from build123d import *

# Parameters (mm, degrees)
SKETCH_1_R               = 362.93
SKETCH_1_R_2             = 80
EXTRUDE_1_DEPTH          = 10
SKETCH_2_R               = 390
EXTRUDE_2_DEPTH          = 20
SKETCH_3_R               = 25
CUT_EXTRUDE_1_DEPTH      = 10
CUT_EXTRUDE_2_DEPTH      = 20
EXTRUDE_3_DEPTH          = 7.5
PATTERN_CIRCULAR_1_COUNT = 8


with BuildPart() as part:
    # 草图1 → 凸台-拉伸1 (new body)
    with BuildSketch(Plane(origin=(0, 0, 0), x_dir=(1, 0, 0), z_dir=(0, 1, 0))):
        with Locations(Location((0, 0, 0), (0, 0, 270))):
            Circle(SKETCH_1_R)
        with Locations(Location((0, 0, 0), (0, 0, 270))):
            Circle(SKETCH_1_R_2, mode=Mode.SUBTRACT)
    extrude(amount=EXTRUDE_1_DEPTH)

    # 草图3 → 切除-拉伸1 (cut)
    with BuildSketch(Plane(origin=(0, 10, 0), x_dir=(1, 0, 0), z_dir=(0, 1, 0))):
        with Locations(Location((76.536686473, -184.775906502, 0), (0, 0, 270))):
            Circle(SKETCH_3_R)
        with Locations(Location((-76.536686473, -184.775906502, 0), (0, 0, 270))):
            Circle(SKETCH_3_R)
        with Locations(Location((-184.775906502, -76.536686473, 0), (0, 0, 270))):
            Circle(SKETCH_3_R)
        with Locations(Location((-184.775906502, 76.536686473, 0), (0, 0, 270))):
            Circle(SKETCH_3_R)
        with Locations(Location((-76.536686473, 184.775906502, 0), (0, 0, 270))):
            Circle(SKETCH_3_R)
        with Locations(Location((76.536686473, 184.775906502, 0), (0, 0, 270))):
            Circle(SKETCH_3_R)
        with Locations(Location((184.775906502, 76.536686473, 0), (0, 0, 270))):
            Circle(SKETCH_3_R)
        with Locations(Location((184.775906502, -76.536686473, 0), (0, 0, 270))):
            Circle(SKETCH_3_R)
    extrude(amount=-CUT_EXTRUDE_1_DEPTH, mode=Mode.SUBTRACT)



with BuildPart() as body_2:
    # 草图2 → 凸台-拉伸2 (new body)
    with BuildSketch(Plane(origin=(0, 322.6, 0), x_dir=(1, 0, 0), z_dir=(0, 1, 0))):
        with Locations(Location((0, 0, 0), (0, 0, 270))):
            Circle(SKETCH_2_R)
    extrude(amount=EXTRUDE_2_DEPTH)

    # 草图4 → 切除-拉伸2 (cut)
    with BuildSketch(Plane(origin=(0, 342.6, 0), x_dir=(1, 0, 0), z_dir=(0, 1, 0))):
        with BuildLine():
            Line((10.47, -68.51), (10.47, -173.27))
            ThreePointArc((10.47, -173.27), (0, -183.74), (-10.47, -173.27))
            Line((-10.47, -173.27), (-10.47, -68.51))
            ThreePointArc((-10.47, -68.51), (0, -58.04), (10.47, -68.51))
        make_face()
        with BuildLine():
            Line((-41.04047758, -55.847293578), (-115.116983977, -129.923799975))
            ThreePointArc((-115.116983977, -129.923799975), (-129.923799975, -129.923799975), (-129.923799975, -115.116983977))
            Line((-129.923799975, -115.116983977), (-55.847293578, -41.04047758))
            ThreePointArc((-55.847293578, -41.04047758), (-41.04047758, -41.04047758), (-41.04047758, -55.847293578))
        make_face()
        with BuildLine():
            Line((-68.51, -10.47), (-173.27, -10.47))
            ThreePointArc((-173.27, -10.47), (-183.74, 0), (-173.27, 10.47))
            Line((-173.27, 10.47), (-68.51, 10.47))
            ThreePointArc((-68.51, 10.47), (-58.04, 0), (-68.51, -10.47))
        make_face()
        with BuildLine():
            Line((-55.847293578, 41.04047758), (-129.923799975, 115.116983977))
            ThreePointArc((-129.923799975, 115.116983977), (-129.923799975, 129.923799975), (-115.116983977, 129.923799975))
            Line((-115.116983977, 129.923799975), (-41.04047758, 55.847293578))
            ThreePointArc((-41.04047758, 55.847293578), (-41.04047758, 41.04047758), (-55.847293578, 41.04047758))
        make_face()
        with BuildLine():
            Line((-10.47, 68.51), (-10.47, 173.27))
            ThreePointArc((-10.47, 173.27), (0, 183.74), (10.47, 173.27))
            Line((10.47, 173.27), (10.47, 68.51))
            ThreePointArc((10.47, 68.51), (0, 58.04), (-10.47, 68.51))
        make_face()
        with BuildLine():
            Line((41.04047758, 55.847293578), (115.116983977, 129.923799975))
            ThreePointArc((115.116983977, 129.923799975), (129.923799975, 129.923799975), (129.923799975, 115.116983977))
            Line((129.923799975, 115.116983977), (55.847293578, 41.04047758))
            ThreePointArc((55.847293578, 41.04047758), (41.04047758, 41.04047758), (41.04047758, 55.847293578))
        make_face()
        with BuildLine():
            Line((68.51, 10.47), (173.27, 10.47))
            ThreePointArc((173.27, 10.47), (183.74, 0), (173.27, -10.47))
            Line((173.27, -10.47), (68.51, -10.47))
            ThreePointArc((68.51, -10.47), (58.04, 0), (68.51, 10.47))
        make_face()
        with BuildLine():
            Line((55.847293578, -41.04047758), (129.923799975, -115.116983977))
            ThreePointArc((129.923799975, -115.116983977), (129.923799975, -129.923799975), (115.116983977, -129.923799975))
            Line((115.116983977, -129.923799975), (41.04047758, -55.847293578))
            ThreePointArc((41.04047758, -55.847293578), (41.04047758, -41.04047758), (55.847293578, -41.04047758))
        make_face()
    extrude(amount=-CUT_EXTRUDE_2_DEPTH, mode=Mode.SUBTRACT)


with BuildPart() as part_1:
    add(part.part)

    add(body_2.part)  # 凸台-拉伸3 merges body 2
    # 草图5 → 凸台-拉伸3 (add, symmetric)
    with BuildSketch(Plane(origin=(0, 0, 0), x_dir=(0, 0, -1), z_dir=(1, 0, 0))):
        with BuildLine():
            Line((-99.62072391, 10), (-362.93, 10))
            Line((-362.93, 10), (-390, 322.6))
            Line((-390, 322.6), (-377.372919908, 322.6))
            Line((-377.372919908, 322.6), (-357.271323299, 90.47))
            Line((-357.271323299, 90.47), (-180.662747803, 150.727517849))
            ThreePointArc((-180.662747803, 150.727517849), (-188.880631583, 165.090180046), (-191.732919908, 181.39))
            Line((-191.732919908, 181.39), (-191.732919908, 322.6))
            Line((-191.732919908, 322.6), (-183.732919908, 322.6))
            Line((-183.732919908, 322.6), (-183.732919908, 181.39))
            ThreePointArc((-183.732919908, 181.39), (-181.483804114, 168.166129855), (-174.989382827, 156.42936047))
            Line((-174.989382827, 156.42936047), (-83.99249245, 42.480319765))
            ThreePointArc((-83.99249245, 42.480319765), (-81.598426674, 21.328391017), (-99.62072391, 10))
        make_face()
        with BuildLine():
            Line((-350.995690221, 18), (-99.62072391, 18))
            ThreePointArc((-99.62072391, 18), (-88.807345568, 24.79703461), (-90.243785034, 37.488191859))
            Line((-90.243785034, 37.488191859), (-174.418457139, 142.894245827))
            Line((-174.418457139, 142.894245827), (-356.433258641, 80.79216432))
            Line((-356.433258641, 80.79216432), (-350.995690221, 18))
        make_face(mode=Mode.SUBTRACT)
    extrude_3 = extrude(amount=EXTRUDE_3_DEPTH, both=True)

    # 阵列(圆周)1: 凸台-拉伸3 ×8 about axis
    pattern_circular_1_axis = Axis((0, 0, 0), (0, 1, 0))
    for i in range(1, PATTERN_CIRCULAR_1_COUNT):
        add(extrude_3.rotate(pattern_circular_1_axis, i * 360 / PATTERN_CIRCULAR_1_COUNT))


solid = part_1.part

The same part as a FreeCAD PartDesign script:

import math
import FreeCAD as App
import Part
import Sketcher
from FreeCAD import Vector
Q = App.Units.Quantity

doc = App.newDocument("Part")
body = doc.addObject("PartDesign::Body", "Body")

# Sketch on XZ plane
sketch1 = body.newObject("Sketcher::SketchObject", "Sketch")
sketch1.AttachmentSupport = (doc.getObject("XZ_Plane"), [""])
sketch1.MapMode = "FlatFace"
sketch1.addGeometry([
    Part.Circle(Vector(0, 0, 0), Vector(0, 0, 1), 362.93),
    Part.Circle(Vector(0, 0, 0), Vector(0, 0, 1), 80),
], False)
sketch1.addConstraint([
    Sketcher.Constraint("Coincident", 0, 3, -1, 1),
    Sketcher.Constraint("Coincident", 1, 3, -1, 1),
    Sketcher.Constraint("Diameter", 1, 160.0),
    Sketcher.Constraint("Diameter", 0, 725.86),
])
pad1 = body.newObject("PartDesign::Pad", "Pad")
pad1.Profile = sketch1
pad1.Length = 10
pad1.Reversed = True

# Sketch on XZ plane
sketch2 = body.newObject("Sketcher::SketchObject", "Sketch001")
sketch2.AttachmentSupport = (doc.getObject("XZ_Plane"), [""])
sketch2.MapMode = "FlatFace"
sketch2.AttachmentOffset = App.Placement(Vector(0, 0, -10), App.Rotation())
sketch2.addGeometry([
    Part.Circle(Vector(76.536686, 184.775907, 0), Vector(0, 0, 1), 25),  # 0
    Part.Circle(Vector(-76.536686, 184.775907, 0), Vector(0, 0, 1), 25),  # 1
    Part.Circle(Vector(-184.775907, 76.536686, 0), Vector(0, 0, 1), 25),  # 2
    Part.Circle(Vector(-184.775907, -76.536686, 0), Vector(0, 0, 1), 25),  # 3
    Part.Circle(Vector(-76.536686, -184.775907, 0), Vector(0, 0, 1), 25),  # 4
    Part.Circle(Vector(76.536686, -184.775907, 0), Vector(0, 0, 1), 25),  # 5
    Part.Circle(Vector(184.775907, -76.536686, 0), Vector(0, 0, 1), 25),  # 6
    Part.Circle(Vector(184.775907, 76.536686, 0), Vector(0, 0, 1), 25),  # 7
], False)
sketch2.addConstraint([
    Sketcher.Constraint("Equal", 0, 1),
    Sketcher.Constraint("Equal", 1, 2),
    Sketcher.Constraint("Equal", 2, 3),
    Sketcher.Constraint("Equal", 3, 4),
    Sketcher.Constraint("Equal", 4, 5),
    Sketcher.Constraint("Equal", 5, 6),
    Sketcher.Constraint("Equal", 6, 7),
    Sketcher.Constraint("Symmetric", 0, 3, 4, 3, -1, 1),
    Sketcher.Constraint("Symmetric", 1, 3, 5, 3, -1, 1),
    Sketcher.Constraint("Symmetric", 2, 3, 6, 3, -1, 1),
    Sketcher.Constraint("Symmetric", 3, 3, 7, 3, -1, 1),
    Sketcher.Constraint("Symmetric", 0, 3, 1, 3, -2),
    Sketcher.Constraint("Symmetric", 3, 3, 6, 3, -2),
    Sketcher.Constraint("Diameter", 0, 50.0),
    Sketcher.Constraint("DistanceX", 2, 3, 1, 3, 108.23922),
    Sketcher.Constraint("DistanceY", 2, 3, 1, 3, 108.23922),
    Sketcher.Constraint("DistanceX", -1, 1, 0, 3, 76.536686),
    Sketcher.Constraint("DistanceY", -1, 1, 0, 3, 184.775907),
])
pocket1 = body.newObject("PartDesign::Pocket", "Pocket")
pocket1.Profile = sketch2
pocket1.Length = 10
pocket1.Reversed = True
body2 = doc.addObject("PartDesign::Body", "Body001")

# Sketch on XZ plane
sketch3 = body2.newObject("Sketcher::SketchObject", "Sketch002")
sketch3.AttachmentSupport = (doc.getObject("XZ_Plane001"), [""])
sketch3.MapMode = "FlatFace"
sketch3.AttachmentOffset = App.Placement(Vector(0, 0, -322.6), App.Rotation())
sketch3.addGeometry(Part.Circle(Vector(0, 0, 0), Vector(0, 0, 1), 390), False)
sketch3.addConstraint([
    Sketcher.Constraint("Coincident", 0, 3, -1, 1),
    Sketcher.Constraint("Diameter", 0, 780.0),
])
pad2 = body2.newObject("PartDesign::Pad", "Pad001")
pad2.Profile = sketch3
pad2.Length = 20
pad2.Reversed = True

# Sketch on XZ plane
sketch4 = body2.newObject("Sketcher::SketchObject", "Sketch003")
sketch4.AttachmentSupport = (doc.getObject("XZ_Plane001"), [""])
sketch4.MapMode = "FlatFace"
sketch4.AttachmentOffset = App.Placement(Vector(0, 0, -342.6), App.Rotation())
sketch4.addGeometry([
    Part.LineSegment(Vector(10.47, 173.27, 0), Vector(10.47, 68.51, 0)),  # 0
    Part.ArcOfCircle(Part.Circle(Vector(0, 68.51, 0), Vector(0, 0, 1), 10.47), math.radians(180), math.radians(360)),  # 1
    Part.LineSegment(Vector(-10.47, 68.51, 0), Vector(-10.47, 173.27, 0)),  # 2
    Part.ArcOfCircle(Part.Circle(Vector(0, 173.27, 0), Vector(0, 0, 1), 10.47), math.radians(0), math.radians(180)),  # 3
    Part.LineSegment(Vector(-115.116984, 129.9238, 0), Vector(-41.040478, 55.847294, 0)),  # 4
    Part.ArcOfCircle(Part.Circle(Vector(-48.443886, 48.443886, 0), Vector(0, 0, 1), 10.47), math.radians(-135), math.radians(45)),  # 5
    Part.LineSegment(Vector(-55.847294, 41.040478, 0), Vector(-129.9238, 115.116984, 0)),  # 6
    Part.ArcOfCircle(Part.Circle(Vector(-122.520392, 122.520392, 0), Vector(0, 0, 1), 10.47), math.radians(45), math.radians(225)),  # 7
    Part.LineSegment(Vector(-173.27, 10.47, 0), Vector(-68.51, 10.47, 0)),  # 8
    Part.ArcOfCircle(Part.Circle(Vector(-68.51, 0, 0), Vector(0, 0, 1), 10.47), math.radians(-90), math.radians(90)),  # 9
    Part.LineSegment(Vector(-68.51, -10.47, 0), Vector(-173.27, -10.47, 0)),  # 10
    Part.ArcOfCircle(Part.Circle(Vector(-173.27, 0, 0), Vector(0, 0, 1), 10.47), math.radians(90), math.radians(270)),  # 11
    Part.LineSegment(Vector(-129.9238, -115.116984, 0), Vector(-55.847294, -41.040478, 0)),  # 12
    Part.ArcOfCircle(Part.Circle(Vector(-48.443886, -48.443886, 0), Vector(0, 0, 1), 10.47), math.radians(-45), math.radians(135)),  # 13
    Part.LineSegment(Vector(-41.040478, -55.847294, 0), Vector(-115.116984, -129.9238, 0)),  # 14
    Part.ArcOfCircle(Part.Circle(Vector(-122.520392, -122.520392, 0), Vector(0, 0, 1), 10.47), math.radians(135), math.radians(315)),  # 15
    Part.LineSegment(Vector(-10.47, -173.27, 0), Vector(-10.47, -68.51, 0)),  # 16
    Part.ArcOfCircle(Part.Circle(Vector(0, -68.51, 0), Vector(0, 0, 1), 10.47), math.radians(0), math.radians(180)),  # 17
    Part.LineSegment(Vector(10.47, -68.51, 0), Vector(10.47, -173.27, 0)),  # 18
    Part.ArcOfCircle(Part.Circle(Vector(0, -173.27, 0), Vector(0, 0, 1), 10.47), math.radians(180), math.radians(360)),  # 19
    Part.LineSegment(Vector(115.116984, -129.9238, 0), Vector(41.040478, -55.847294, 0)),  # 20
    Part.ArcOfCircle(Part.Circle(Vector(48.443886, -48.443886, 0), Vector(0, 0, 1), 10.47), math.radians(45), math.radians(225)),  # 21
    Part.LineSegment(Vector(55.847294, -41.040478, 0), Vector(129.9238, -115.116984, 0)),  # 22
    Part.ArcOfCircle(Part.Circle(Vector(122.520392, -122.520392, 0), Vector(0, 0, 1), 10.47), math.radians(-135), math.radians(45)),  # 23
    Part.LineSegment(Vector(173.27, -10.47, 0), Vector(68.51, -10.47, 0)),  # 24
    Part.ArcOfCircle(Part.Circle(Vector(68.51, 0, 0), Vector(0, 0, 1), 10.47), math.radians(90), math.radians(270)),  # 25
    Part.LineSegment(Vector(68.51, 10.47, 0), Vector(173.27, 10.47, 0)),  # 26
    Part.ArcOfCircle(Part.Circle(Vector(173.27, 0, 0), Vector(0, 0, 1), 10.47), math.radians(-90), math.radians(90)),  # 27
    Part.LineSegment(Vector(129.9238, 115.116984, 0), Vector(55.847294, 41.040478, 0)),  # 28
    Part.ArcOfCircle(Part.Circle(Vector(48.443886, 48.443886, 0), Vector(0, 0, 1), 10.47), math.radians(135), math.radians(315)),  # 29
    Part.LineSegment(Vector(41.040478, 55.847294, 0), Vector(115.116984, 129.9238, 0)),  # 30
    Part.ArcOfCircle(Part.Circle(Vector(122.520392, 122.520392, 0), Vector(0, 0, 1), 10.47), math.radians(-45), math.radians(135)),  # 31
], False)
sketch4.addConstraint([
    Sketcher.Constraint("Tangent", 0, 2, 1, 2),
    Sketcher.Constraint("Tangent", 1, 1, 2, 1),
    Sketcher.Constraint("Tangent", 2, 2, 3, 2),
    Sketcher.Constraint("Tangent", 3, 1, 0, 1),
    Sketcher.Constraint("Tangent", 4, 2, 5, 2),
    Sketcher.Constraint("Tangent", 5, 1, 6, 1),
    Sketcher.Constraint("Tangent", 6, 2, 7, 2),
    Sketcher.Constraint("Tangent", 7, 1, 4, 1),
    Sketcher.Constraint("Tangent", 8, 2, 9, 2),
    Sketcher.Constraint("Tangent", 9, 1, 10, 1),
    Sketcher.Constraint("Tangent", 10, 2, 11, 2),
    Sketcher.Constraint("Tangent", 11, 1, 8, 1),
    Sketcher.Constraint("Tangent", 12, 2, 13, 2),
    Sketcher.Constraint("Tangent", 13, 1, 14, 1),
    Sketcher.Constraint("Tangent", 14, 2, 15, 2),
    Sketcher.Constraint("Tangent", 15, 1, 12, 1),
    Sketcher.Constraint("Tangent", 16, 2, 17, 2),
    Sketcher.Constraint("Tangent", 17, 1, 18, 1),
    Sketcher.Constraint("Tangent", 18, 2, 19, 2),
    Sketcher.Constraint("Tangent", 19, 1, 16, 1),
    Sketcher.Constraint("Tangent", 20, 2, 21, 2),
    Sketcher.Constraint("Tangent", 21, 1, 22, 1),
    Sketcher.Constraint("Tangent", 22, 2, 23, 2),
    Sketcher.Constraint("Tangent", 23, 1, 20, 1),
    Sketcher.Constraint("Tangent", 24, 2, 25, 2),
    Sketcher.Constraint("Tangent", 25, 1, 26, 1),
    Sketcher.Constraint("Tangent", 26, 2, 27, 2),
    Sketcher.Constraint("Tangent", 27, 1, 24, 1),
    Sketcher.Constraint("Tangent", 28, 2, 29, 2),
    Sketcher.Constraint("Tangent", 29, 1, 30, 1),
    Sketcher.Constraint("Tangent", 30, 2, 31, 2),
    Sketcher.Constraint("Tangent", 31, 1, 28, 1),
    Sketcher.Constraint("Vertical", 0),
    Sketcher.Constraint("Vertical", 2),
    Sketcher.Constraint("Horizontal", 8),
    Sketcher.Constraint("Horizontal", 10),
    Sketcher.Constraint("Vertical", 16),
    Sketcher.Constraint("Vertical", 18),
    Sketcher.Constraint("Horizontal", 24),
    Sketcher.Constraint("Horizontal", 26),
    Sketcher.Constraint("Equal", 3, 5),
    Sketcher.Constraint("Equal", 5, 7),
    Sketcher.Constraint("Equal", 7, 9),
    Sketcher.Constraint("Equal", 11, 13),
    Sketcher.Constraint("Equal", 13, 15),
    Sketcher.Constraint("Equal", 15, 17),
    Sketcher.Constraint("Equal", 19, 21),
    Sketcher.Constraint("Equal", 21, 23),
    Sketcher.Constraint("Equal", 23, 25),
    Sketcher.Constraint("Equal", 27, 29),
    Sketcher.Constraint("Equal", 29, 31),
    Sketcher.Constraint("Symmetric", 1, 3, 17, 3, -1, 1),
    Sketcher.Constraint("Symmetric", 5, 3, 21, 3, -1, 1),
    Sketcher.Constraint("Symmetric", 7, 3, 23, 3, -1, 1),
    Sketcher.Constraint("Symmetric", 9, 3, 25, 3, -1, 1),
    Sketcher.Constraint("Symmetric", 13, 3, 29, 3, -1, 1),
    Sketcher.Constraint("Symmetric", 15, 3, 31, 3, -1, 1),
    Sketcher.Constraint("Symmetric", 13, 3, 21, 3, -2),
    Sketcher.Constraint("Symmetric", 15, 3, 23, 3, -2),
    Sketcher.Constraint("Symmetric", 11, 3, 27, 3, -2),
    Sketcher.Constraint("Symmetric", 3, 3, 19, 3, -1),
    Sketcher.Constraint("Perpendicular", 6, 12),
    Sketcher.Constraint("Equal", 26, 0),
    Sketcher.Constraint("Radius", 1, 10.47),
    Sketcher.Constraint("DistanceX", 8, 1, 8, 2, 104.76),
    Sketcher.Constraint("Distance", 4, 104.76),
    Sketcher.Constraint("DistanceY", -1, 1, 1, 3, 68.51),
    Sketcher.Constraint("DistanceX", 9, 3, -1, 1, 68.51),
    Sketcher.Constraint("DistanceX", 6, 2, -1, 1, 129.9238),
    Sketcher.Constraint("DistanceY", -1, 1, 7, 1, 129.9238),
])
pocket2 = body2.newObject("PartDesign::Pocket", "Pocket001")
pocket2.Profile = sketch4
pocket2.Length = 20
pocket2.Reversed = True
body.AllowCompound = True
doc.recompute()

boolean = body.newObject("PartDesign::Boolean", "Boolean")
boolean.Type = "Fuse"
boolean.addObjects([body2])

# Sketch on YZ plane
sketch5 = body.newObject("Sketcher::SketchObject", "Sketch004")
sketch5.AttachmentSupport = (doc.getObject("YZ_Plane"), [""])
sketch5.MapMode = "FlatFace"
sketch5.addGeometry([
    Part.LineSegment(Vector(10, 362.93, 0), Vector(10, 99.620724, 0)),  # 0
    Part.ArcOfCircle(Part.Circle(Vector(30, 99.620724, 0), Vector(0, 0, 1), 20), math.radians(180), math.radians(308.61)),  # 1
    Part.LineSegment(Vector(42.48032, 83.992492, 0), Vector(156.42936, 174.989383, 0)),  # 2
    Part.ArcOfCircle(Part.Circle(Vector(181.39, 143.73292, 0), Vector(0, 0, 1), 40), math.radians(90), math.radians(128.61)),  # 3
    Part.LineSegment(Vector(181.39, 183.73292, 0), Vector(322.6, 183.73292, 0)),  # 4
    Part.LineSegment(Vector(322.6, 183.73292, 0), Vector(322.6, 191.73292, 0)),  # 5
    Part.LineSegment(Vector(322.6, 191.73292, 0), Vector(181.39, 191.73292, 0)),  # 6
    Part.ArcOfCircle(Part.Circle(Vector(181.39, 143.73292, 0), Vector(0, 0, 1), 48), math.radians(90), math.radians(129.702524)),  # 7
    Part.LineSegment(Vector(150.727518, 180.662748, 0), Vector(90.47, 357.271323, 0)),  # 8
    Part.LineSegment(Vector(90.47, 357.271323, 0), Vector(322.6, 377.37292, 0)),  # 9
    Part.LineSegment(Vector(322.6, 377.37292, 0), Vector(322.6, 390, 0)),  # 10
    Part.LineSegment(Vector(322.6, 390, 0), Vector(10, 362.93, 0)),  # 11
    Part.LineSegment(Vector(18, 350.99569, 0), Vector(80.792164, 356.433259, 0)),  # 12
    Part.LineSegment(Vector(80.792164, 356.433259, 0), Vector(142.894246, 174.418457, 0)),  # 13
    Part.LineSegment(Vector(142.894246, 174.418457, 0), Vector(37.488192, 90.243785, 0)),  # 14
    Part.ArcOfCircle(Part.Circle(Vector(30, 99.620724, 0), Vector(0, 0, 1), 12), math.radians(180), math.radians(308.61)),  # 15
    Part.LineSegment(Vector(18, 99.620724, 0), Vector(18, 350.99569, 0)),  # 16
], False)
sketch5.addConstraint([
    Sketcher.Constraint("Tangent", 0, 2, 1, 1),
    Sketcher.Constraint("Tangent", 1, 2, 2, 1),
    Sketcher.Constraint("Tangent", 2, 2, 3, 2),
    Sketcher.Constraint("Tangent", 3, 1, 4, 1),
    Sketcher.Constraint("Coincident", 4, 2, 5, 1),
    Sketcher.Constraint("Coincident", 5, 2, 6, 1),
    Sketcher.Constraint("Tangent", 6, 2, 7, 1),
    Sketcher.Constraint("Coincident", 7, 2, 8, 1),
    Sketcher.Constraint("Coincident", 8, 2, 9, 1),
    Sketcher.Constraint("Coincident", 9, 2, 10, 1),
    Sketcher.Constraint("Coincident", 10, 2, 11, 1),
    Sketcher.Constraint("Coincident", 11, 2, 0, 1),
    Sketcher.Constraint("Coincident", 12, 2, 13, 1),
    Sketcher.Constraint("Coincident", 13, 2, 14, 1),
    Sketcher.Constraint("Tangent", 14, 2, 15, 2),
    Sketcher.Constraint("Tangent", 15, 1, 16, 1),
    Sketcher.Constraint("Coincident", 16, 2, 12, 1),
    Sketcher.Constraint("Vertical", 0),
    Sketcher.Constraint("Horizontal", 4),
    Sketcher.Constraint("Vertical", 5),
    Sketcher.Constraint("Horizontal", 6),
    Sketcher.Constraint("Vertical", 10),
    Sketcher.Constraint("Vertical", 16),
    Sketcher.Constraint("Coincident", 7, 3, 3, 3),
    Sketcher.Constraint("Coincident", 15, 3, 1, 3),
    Sketcher.Constraint("Parallel", 9, 11),
    Sketcher.Constraint("Parallel", 11, 12),
    Sketcher.Constraint("Parallel", 8, 13),
    Sketcher.Constraint("Parallel", 2, 14),
    Sketcher.Constraint("Vertical", 5, 2, 9, 2),
    Sketcher.Constraint("Radius", 1, 20.0),
    Sketcher.Constraint("Radius", 3, 40.0),
    Sketcher.Constraint("Radius", 7, 48.0),
    Sketcher.Constraint("Radius", 15, 12.0),
    Sketcher.Constraint("DistanceX", -1, 1, 1, 3, 30.0),
    Sketcher.Constraint("DistanceY", -1, 1, 10, 2, 390.0),
    Sketcher.Constraint("DistanceX", 4, 1, 4, 2, 141.21),
    Sketcher.Constraint("DistanceX", -1, 1, 4, 2, 322.6),
    Sketcher.Constraint("Angle", 2, Q("38.61 deg")),
    Sketcher.Constraint("DistanceX", -1, 1, 8, 2, 90.47),
    Sketcher.Constraint("DistanceY", -1, 1, 11, 2, 362.93),
    Sketcher.Constraint("DistanceY", 5, 2, 9, 2, 185.64),
    Sketcher.Constraint("DistanceY", 10, 1, 10, 2, 12.62708),
    Sketcher.Constraint("Distance", 12, 63.027161),
    Sketcher.Constraint("Distance", 14, 134.891852),
    Sketcher.Constraint("DistanceY", 16, 1, 16, 2, 251.374966),
])
pad3 = body.newObject("PartDesign::Pad", "Pad002")
pad3.Profile = sketch5
pad3.Length = 15
pad3.Midplane = True
doc.recompute()

polarpattern = body.newObject("PartDesign::PolarPattern", "PolarPattern")
polarpattern.Originals = [pad3]
polarpattern.Axis = (doc.getObject("Y_Axis"), [""])
polarpattern.Angle = 360
polarpattern.Occurrences = 8
body.Tip = polarpattern

doc.recompute()
